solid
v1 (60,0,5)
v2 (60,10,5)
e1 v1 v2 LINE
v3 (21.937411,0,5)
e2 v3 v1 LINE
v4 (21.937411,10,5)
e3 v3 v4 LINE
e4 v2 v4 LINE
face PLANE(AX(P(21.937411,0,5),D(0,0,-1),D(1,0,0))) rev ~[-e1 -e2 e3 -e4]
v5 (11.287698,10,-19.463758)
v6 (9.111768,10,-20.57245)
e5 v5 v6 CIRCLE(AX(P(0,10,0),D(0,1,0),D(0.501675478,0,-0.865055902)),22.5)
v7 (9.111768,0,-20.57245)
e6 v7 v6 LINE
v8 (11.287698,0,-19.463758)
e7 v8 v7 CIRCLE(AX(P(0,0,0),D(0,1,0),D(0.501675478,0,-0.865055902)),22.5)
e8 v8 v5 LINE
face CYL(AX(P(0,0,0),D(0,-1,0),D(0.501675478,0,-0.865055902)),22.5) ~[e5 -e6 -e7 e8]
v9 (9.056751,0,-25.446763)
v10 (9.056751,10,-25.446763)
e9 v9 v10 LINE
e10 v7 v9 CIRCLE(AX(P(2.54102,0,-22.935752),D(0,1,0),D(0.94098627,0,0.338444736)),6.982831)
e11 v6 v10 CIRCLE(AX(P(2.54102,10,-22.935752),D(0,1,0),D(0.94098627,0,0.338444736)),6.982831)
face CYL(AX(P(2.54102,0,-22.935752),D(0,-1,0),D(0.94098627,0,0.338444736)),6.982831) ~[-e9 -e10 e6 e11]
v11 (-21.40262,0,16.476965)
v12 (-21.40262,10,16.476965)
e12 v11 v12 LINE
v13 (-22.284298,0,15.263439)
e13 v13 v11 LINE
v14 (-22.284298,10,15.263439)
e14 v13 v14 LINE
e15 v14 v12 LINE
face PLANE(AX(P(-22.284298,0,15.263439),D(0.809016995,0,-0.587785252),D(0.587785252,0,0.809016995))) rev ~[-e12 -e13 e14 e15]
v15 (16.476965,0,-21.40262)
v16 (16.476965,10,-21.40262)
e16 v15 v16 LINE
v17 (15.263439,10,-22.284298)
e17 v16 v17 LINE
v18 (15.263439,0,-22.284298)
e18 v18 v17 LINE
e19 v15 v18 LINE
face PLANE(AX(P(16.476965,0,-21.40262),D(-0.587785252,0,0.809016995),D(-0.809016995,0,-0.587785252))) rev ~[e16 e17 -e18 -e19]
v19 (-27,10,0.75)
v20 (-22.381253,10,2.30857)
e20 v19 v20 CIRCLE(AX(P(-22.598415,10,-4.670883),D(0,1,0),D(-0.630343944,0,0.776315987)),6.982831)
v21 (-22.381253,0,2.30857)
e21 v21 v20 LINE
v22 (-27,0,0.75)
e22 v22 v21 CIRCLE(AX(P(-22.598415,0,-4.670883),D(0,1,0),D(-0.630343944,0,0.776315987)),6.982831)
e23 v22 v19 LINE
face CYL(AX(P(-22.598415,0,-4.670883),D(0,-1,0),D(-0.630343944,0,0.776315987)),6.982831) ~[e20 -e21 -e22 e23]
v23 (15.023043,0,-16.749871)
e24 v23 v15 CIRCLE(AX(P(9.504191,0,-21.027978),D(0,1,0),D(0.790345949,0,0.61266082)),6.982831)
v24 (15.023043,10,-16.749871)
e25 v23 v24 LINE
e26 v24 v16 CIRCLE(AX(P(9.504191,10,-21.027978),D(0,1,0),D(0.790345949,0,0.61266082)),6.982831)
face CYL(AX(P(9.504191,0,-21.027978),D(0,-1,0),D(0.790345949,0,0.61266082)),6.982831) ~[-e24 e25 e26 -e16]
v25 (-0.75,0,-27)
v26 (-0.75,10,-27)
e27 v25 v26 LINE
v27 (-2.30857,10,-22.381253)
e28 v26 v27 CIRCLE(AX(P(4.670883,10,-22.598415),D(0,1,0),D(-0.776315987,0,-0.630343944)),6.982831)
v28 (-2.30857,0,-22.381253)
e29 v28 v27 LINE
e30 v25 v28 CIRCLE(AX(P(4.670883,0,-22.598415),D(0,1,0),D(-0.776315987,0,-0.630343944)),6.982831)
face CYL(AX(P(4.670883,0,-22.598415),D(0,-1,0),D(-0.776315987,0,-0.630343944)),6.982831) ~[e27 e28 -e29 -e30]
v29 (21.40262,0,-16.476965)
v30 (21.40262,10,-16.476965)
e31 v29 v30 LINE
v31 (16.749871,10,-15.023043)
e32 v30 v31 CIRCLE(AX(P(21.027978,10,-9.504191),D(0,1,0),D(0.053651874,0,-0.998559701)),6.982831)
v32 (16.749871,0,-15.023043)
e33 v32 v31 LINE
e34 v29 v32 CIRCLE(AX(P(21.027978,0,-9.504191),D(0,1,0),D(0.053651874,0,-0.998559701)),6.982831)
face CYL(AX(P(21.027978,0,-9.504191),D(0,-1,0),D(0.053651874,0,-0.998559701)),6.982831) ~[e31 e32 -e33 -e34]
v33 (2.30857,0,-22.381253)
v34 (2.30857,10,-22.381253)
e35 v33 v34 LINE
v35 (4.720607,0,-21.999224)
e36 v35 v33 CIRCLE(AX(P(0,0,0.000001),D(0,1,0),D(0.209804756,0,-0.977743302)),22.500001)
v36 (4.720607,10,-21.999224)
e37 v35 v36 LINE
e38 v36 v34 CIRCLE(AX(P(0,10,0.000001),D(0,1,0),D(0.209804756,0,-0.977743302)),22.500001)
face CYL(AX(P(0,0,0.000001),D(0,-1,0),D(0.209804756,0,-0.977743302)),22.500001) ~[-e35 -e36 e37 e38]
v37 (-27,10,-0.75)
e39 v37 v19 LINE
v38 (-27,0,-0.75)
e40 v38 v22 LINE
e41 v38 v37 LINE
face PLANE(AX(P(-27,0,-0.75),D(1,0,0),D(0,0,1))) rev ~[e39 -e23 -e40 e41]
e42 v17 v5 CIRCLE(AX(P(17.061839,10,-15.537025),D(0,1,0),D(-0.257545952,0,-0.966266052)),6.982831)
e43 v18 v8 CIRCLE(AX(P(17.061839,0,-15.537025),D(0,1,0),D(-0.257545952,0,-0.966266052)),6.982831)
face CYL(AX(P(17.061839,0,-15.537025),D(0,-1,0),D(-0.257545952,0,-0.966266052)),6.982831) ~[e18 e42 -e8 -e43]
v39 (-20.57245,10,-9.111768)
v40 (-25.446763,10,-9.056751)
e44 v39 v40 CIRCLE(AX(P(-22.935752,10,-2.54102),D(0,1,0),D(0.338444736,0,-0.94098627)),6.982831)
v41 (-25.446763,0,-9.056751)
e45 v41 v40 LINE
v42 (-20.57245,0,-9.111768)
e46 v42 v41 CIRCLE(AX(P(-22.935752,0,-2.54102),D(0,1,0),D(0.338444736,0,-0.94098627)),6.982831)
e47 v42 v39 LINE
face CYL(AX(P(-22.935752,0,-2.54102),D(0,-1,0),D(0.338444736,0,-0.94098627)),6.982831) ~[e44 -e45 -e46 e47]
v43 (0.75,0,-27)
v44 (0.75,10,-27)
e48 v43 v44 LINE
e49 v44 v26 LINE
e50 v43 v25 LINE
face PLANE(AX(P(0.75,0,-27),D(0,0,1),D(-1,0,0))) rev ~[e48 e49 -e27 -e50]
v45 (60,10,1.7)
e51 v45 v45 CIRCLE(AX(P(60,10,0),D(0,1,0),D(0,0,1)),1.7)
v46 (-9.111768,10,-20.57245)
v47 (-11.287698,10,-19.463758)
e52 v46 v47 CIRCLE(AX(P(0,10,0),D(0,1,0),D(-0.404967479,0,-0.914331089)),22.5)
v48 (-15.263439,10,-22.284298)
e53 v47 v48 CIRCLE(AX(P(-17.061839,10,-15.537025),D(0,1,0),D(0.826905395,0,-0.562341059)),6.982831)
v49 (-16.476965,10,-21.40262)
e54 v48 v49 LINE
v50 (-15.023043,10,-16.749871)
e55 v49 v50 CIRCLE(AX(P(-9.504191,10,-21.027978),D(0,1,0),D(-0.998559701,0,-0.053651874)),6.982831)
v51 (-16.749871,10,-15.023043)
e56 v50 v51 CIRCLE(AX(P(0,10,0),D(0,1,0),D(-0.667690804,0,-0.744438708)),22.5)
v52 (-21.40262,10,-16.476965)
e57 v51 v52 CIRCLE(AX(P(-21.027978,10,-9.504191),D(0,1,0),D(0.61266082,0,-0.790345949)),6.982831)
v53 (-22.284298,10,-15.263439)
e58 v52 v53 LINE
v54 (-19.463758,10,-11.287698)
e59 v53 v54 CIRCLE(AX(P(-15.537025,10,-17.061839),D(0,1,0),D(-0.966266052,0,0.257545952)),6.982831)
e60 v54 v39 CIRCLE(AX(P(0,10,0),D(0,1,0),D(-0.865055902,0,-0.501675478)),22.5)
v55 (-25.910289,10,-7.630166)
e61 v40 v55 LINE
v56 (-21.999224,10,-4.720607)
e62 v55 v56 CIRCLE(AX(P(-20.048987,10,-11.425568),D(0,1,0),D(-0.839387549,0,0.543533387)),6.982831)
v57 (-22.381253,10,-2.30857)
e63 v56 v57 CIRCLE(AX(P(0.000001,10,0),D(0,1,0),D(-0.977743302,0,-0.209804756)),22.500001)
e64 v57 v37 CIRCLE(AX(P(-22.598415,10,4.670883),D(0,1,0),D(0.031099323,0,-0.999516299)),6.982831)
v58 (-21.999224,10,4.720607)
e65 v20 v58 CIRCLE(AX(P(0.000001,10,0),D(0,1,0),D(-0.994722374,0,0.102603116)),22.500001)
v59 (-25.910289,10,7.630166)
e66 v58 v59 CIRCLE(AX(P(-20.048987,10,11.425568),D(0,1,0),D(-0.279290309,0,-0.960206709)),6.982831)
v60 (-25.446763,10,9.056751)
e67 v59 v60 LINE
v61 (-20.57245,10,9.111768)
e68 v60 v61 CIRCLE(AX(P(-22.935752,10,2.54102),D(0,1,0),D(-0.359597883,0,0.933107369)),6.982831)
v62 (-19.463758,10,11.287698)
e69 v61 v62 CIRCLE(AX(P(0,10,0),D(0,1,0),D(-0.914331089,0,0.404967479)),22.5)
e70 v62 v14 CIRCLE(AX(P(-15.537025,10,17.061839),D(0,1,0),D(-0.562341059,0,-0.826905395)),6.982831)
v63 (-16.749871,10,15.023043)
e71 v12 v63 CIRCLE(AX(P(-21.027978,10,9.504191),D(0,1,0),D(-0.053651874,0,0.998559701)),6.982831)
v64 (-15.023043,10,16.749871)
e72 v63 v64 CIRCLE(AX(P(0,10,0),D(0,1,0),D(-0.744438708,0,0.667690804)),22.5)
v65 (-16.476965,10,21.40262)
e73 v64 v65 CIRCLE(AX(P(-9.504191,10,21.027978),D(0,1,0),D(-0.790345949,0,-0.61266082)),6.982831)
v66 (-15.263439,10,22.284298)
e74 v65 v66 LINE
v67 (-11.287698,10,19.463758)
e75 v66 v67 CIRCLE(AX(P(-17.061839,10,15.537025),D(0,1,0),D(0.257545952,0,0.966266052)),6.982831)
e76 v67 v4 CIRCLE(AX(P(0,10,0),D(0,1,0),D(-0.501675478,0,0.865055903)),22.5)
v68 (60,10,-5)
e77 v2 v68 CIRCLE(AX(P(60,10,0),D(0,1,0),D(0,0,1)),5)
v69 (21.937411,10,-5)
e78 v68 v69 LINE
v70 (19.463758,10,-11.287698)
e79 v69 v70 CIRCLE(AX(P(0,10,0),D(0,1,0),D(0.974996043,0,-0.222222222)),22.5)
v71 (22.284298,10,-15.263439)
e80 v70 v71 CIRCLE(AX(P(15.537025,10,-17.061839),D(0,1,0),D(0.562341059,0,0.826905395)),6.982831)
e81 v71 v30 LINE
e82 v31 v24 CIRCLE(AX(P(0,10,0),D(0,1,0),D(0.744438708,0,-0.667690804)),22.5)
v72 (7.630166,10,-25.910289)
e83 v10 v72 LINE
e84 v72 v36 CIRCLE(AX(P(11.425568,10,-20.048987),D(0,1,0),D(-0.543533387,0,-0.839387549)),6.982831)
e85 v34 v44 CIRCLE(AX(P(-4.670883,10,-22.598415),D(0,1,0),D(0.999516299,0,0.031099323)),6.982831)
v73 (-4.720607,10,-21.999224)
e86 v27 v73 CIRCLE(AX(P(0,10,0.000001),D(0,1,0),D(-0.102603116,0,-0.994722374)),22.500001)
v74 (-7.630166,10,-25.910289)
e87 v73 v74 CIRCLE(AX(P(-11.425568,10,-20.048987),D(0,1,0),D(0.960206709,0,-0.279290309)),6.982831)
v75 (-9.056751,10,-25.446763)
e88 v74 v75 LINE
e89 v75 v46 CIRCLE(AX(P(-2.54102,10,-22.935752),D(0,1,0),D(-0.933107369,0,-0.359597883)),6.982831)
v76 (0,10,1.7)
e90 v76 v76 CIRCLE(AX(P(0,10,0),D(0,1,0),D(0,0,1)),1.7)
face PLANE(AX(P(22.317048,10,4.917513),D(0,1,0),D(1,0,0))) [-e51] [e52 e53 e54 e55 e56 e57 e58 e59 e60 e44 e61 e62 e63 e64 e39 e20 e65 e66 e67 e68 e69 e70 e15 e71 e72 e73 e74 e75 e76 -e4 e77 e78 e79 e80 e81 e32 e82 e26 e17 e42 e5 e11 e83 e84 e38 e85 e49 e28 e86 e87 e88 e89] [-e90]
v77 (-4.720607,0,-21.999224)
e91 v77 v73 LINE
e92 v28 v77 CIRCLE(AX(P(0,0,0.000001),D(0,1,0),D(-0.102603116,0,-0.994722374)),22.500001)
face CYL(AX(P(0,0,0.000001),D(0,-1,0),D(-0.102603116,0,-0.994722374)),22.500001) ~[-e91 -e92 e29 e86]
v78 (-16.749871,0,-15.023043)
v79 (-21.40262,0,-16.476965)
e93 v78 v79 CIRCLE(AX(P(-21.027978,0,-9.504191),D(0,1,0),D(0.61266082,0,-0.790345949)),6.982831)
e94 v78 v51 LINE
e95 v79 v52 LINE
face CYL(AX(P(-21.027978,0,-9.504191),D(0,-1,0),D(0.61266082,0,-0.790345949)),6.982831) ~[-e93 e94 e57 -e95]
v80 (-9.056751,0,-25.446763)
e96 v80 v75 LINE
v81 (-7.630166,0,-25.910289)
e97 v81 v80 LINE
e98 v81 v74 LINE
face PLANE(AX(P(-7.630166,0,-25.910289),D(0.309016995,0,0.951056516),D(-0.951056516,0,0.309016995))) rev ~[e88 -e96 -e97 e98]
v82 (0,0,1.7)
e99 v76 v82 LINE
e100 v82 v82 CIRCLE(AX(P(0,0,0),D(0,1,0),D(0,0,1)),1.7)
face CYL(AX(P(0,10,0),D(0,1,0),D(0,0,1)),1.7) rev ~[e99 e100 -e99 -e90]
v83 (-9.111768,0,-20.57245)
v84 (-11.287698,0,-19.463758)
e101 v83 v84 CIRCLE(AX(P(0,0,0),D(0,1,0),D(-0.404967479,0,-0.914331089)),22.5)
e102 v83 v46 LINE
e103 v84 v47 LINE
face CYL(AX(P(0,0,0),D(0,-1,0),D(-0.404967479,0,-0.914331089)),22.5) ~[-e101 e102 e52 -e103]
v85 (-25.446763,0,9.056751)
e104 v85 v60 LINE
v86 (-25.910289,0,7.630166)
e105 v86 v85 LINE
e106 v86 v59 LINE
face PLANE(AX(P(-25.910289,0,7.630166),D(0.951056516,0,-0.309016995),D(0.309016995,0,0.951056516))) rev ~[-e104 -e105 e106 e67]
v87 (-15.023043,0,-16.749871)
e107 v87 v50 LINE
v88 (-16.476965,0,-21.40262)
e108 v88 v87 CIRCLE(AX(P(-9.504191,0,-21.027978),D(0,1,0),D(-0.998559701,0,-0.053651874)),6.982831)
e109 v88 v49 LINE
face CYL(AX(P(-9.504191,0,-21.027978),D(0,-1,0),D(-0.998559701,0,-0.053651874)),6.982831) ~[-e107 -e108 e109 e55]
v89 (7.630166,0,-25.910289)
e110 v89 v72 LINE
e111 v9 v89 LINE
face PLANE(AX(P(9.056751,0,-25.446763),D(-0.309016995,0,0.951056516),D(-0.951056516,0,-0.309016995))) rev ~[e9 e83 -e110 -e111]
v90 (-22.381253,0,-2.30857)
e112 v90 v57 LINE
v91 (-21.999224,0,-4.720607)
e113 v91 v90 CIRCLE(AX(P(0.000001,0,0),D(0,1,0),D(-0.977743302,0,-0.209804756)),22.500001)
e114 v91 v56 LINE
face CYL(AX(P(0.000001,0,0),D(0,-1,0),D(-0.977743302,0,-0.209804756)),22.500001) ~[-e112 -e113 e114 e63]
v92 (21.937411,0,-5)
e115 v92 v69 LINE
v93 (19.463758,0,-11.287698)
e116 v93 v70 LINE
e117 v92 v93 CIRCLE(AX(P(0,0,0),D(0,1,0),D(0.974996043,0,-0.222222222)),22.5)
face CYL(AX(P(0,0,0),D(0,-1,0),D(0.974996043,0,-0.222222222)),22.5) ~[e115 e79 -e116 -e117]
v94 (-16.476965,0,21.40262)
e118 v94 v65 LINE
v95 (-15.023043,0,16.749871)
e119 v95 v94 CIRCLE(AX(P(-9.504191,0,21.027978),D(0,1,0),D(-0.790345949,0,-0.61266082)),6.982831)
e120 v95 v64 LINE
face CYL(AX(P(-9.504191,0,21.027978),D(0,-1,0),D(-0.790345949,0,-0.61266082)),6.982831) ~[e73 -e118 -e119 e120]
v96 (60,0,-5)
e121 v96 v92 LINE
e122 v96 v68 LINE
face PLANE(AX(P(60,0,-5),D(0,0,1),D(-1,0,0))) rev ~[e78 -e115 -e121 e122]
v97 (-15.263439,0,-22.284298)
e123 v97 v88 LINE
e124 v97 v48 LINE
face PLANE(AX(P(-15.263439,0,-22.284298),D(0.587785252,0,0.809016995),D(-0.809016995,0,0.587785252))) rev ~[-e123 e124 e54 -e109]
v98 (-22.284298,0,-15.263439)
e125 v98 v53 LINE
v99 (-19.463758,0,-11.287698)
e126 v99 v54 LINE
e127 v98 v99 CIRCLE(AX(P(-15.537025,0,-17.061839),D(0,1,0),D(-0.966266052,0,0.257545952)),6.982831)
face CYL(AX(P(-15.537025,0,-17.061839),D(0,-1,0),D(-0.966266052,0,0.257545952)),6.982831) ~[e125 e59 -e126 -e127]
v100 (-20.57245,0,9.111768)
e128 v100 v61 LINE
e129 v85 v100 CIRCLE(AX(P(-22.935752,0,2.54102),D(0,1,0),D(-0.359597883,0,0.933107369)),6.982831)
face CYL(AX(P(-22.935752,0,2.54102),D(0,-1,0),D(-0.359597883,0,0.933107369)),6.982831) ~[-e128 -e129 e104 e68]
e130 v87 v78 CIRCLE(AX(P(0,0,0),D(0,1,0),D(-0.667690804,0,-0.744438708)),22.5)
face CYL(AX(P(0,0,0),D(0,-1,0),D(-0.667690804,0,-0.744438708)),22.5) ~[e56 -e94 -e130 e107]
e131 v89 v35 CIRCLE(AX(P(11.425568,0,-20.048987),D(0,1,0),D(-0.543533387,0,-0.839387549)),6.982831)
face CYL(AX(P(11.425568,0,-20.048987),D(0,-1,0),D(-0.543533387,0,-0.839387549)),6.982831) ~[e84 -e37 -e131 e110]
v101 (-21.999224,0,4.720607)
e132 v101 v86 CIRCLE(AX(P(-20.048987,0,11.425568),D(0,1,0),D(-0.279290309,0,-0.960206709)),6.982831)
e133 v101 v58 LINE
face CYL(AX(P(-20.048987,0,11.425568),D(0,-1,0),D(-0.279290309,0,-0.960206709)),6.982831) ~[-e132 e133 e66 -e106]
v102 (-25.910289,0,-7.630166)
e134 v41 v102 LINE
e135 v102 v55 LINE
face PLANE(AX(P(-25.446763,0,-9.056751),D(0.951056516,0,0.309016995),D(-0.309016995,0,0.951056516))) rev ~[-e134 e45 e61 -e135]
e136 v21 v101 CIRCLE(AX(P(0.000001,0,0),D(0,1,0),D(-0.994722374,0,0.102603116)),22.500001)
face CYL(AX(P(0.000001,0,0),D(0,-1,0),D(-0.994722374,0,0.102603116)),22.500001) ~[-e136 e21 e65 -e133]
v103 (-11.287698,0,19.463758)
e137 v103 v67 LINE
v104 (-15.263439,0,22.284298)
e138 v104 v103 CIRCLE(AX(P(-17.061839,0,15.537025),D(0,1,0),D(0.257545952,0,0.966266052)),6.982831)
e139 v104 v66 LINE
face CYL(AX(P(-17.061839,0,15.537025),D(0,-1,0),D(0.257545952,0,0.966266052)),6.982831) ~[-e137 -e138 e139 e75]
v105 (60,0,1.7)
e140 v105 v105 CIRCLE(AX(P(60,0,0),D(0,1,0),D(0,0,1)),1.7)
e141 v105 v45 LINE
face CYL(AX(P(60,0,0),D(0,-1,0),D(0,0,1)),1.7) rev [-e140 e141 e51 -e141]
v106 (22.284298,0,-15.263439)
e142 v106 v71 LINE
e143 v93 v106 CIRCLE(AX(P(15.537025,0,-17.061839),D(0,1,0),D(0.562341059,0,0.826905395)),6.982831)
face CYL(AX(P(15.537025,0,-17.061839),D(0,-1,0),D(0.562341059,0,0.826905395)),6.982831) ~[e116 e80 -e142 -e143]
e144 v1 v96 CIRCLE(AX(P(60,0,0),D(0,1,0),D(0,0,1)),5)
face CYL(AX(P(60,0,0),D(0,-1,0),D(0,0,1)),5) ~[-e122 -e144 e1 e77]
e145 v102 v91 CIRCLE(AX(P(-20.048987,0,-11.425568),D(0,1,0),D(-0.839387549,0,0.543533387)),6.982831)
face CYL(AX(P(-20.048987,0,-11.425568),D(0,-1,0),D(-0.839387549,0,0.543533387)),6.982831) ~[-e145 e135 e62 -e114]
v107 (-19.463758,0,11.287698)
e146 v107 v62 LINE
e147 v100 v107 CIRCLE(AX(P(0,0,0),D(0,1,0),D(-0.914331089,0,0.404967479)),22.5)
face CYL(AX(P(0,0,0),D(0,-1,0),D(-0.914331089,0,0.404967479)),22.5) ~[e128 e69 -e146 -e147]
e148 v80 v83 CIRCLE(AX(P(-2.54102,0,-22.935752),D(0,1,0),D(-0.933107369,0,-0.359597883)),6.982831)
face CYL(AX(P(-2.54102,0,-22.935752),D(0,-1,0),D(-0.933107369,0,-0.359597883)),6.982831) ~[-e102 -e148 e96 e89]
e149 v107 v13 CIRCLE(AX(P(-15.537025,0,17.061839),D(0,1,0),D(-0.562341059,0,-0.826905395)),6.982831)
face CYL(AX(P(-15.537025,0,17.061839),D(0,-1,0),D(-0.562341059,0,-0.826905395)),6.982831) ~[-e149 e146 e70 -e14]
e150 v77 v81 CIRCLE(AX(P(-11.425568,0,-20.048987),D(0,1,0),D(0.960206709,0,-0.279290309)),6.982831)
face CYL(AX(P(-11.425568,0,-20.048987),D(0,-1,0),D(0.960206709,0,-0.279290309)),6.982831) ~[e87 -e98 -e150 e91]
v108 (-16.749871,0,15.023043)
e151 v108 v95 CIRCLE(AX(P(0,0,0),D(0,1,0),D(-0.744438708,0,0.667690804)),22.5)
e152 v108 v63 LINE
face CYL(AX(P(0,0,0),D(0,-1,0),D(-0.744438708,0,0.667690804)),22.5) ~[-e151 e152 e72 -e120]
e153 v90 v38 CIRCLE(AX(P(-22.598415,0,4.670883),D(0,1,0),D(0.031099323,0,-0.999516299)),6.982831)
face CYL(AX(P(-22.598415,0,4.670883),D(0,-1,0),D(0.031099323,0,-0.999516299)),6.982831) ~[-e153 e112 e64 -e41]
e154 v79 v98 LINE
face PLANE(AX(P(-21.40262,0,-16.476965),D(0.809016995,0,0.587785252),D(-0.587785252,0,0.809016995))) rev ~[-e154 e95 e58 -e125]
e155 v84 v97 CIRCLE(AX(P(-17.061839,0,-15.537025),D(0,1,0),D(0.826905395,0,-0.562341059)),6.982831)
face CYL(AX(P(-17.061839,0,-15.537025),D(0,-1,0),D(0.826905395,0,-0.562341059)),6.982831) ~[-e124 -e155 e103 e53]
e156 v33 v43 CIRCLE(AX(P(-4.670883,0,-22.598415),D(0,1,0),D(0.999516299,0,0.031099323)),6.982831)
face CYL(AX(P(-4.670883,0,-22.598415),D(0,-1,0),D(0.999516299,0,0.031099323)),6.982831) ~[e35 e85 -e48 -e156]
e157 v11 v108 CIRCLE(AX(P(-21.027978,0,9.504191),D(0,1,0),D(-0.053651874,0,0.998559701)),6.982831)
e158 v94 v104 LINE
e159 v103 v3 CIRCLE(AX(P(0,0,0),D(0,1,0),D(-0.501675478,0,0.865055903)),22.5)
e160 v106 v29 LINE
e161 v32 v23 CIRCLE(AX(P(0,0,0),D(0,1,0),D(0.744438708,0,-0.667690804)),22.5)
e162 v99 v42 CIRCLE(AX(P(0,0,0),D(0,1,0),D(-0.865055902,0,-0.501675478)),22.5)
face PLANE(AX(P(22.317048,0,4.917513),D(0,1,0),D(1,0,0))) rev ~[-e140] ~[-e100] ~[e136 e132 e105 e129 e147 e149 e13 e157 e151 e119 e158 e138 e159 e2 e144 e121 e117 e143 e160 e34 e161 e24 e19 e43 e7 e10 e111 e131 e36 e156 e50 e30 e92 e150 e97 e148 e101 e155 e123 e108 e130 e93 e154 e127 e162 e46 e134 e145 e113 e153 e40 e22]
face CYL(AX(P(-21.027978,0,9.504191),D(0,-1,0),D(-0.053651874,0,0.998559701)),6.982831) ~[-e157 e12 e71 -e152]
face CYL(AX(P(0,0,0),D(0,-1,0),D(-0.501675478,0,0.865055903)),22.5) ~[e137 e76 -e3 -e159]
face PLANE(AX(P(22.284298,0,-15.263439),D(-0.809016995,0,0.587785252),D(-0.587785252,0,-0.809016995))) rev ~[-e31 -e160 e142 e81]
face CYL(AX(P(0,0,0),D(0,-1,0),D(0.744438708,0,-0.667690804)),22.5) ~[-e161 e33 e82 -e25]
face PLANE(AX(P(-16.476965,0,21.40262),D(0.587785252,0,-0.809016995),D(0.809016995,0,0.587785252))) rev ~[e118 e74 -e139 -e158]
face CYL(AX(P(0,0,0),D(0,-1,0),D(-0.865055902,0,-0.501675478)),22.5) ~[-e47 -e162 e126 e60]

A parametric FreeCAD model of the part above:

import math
import FreeCAD as App
import Part
import Sketcher

V = App.Vector
Q = App.Units.Quantity

doc = App.newDocument("Part")
body = doc.addObject("PartDesign::Body", "Body")

# Sketch on XZ plane
sketch1 = body.newObject("Sketcher::SketchObject", "Sketch")
sketch1.AttachmentSupport = (doc.getObject("XZ_Plane"), [""])
sketch1.MapMode = "FlatFace"
sketch1.addGeometry(Part.ArcOfCircle(Part.Circle(V(60, 0, 0), V(0, 0, 1), 5), math.radians(-90), math.radians(90)), False)
sketch1.addGeometry(Part.LineSegment(V(60, -5, 0), V(21.9, -5, 0)), False)
sketch1.addGeometry(Part.ArcOfCircle(Part.Circle(V(0, 0, 0), V(0, 0, 1), 22.5), math.radians(-30.11), math.radians(-12.84)), False)
sketch1.addGeometry(Part.ArcOfCircle(Part.Circle(V(15.5, -17.1, 0), V(0, 0, 1), 7), math.radians(15), math.radians(56)), False)
sketch1.addGeometry(Part.LineSegment(V(22.3, -15.3, 0), V(21.4, -16.5, 0)), False)
sketch1.addGeometry(Part.ArcOfCircle(Part.Circle(V(21, -9.5, 0), V(0, 0, 1), 7), math.radians(-128), math.radians(-87)), False)
sketch1.addGeometry(Part.ArcOfCircle(Part.Circle(V(0, 0, 0), V(0, 0, 1), 22.5), math.radians(-48.11), math.radians(-41.89)), False)
sketch1.addGeometry(Part.ArcOfCircle(Part.Circle(V(9.5, -21, 0), V(0, 0, 1), 7), math.radians(-3), math.radians(38)), False)
sketch1.addGeometry(Part.LineSegment(V(16.5, -21.4, 0), V(15.3, -22.3, 0)), False)
sketch1.addGeometry(Part.ArcOfCircle(Part.Circle(V(17.1, -15.5, 0), V(0, 0, 1), 7), math.radians(-146), math.radians(-105)), False)
sketch1.addGeometry(Part.ArcOfCircle(Part.Circle(V(0, 0, 0), V(0, 0, 1), 22.5), math.radians(-66.11), math.radians(-59.89)), False)
sketch1.addGeometry(Part.ArcOfCircle(Part.Circle(V(2.5, -22.9, 0), V(0, 0, 1), 7), math.radians(-21), math.radians(20)), False)
sketch1.addGeometry(Part.LineSegment(V(9.1, -25.4, 0), V(7.6, -25.9, 0)), False)
sketch1.addGeometry(Part.ArcOfCircle(Part.Circle(V(11.4, -20, 0), V(0, 0, 1), 7), math.radians(-164), math.radians(-123)), False)
sketch1.addGeometry(Part.ArcOfCircle(Part.Circle(V(0, 0, 0), V(0, 0, 1), 22.5), math.radians(-84.11), math.radians(-77.89)), False)
sketch1.addGeometry(Part.ArcOfCircle(Part.Circle(V(-4.7, -22.6, 0), V(0, 0, 1), 7), math.radians(-39), math.radians(2)), False)
sketch1.addGeometry(Part.LineSegment(V(0.8, -27, 0), V(-0.8, -27, 0)), False)
sketch1.addGeometry(Part.ArcOfCircle(Part.Circle(V(4.7, -22.6, 0), V(0, 0, 1), 7), math.radians(178), math.radians(219)), False)
sketch1.addGeometry(Part.ArcOfCircle(Part.Circle(V(0, 0, 0), V(0, 0, 1), 22.5), math.radians(-102.11), math.radians(-95.89)), False)
sketch1.addGeometry(Part.ArcOfCircle(Part.Circle(V(-11.4, -20, 0), V(0, 0, 1), 7), math.radians(-57), math.radians(-16)), False)
sketch1.addGeometry(Part.LineSegment(V(-7.6, -25.9, 0), V(-9.1, -25.4, 0)), False)
sketch1.addGeometry(Part.ArcOfCircle(Part.Circle(V(-2.5, -22.9, 0), V(0, 0, 1), 7), math.radians(160), math.radians(201)), False)
sketch1.addGeometry(Part.ArcOfCircle(Part.Circle(V(0, 0, 0), V(0, 0, 1), 22.5), math.radians(-120.11), math.radians(-113.89)), False)
sketch1.addGeometry(Part.ArcOfCircle(Part.Circle(V(-17.1, -15.5, 0), V(0, 0, 1), 7), math.radians(-75), math.radians(-34)), False)
sketch1.addGeometry(Part.LineSegment(V(-15.3, -22.3, 0), V(-16.5, -21.4, 0)), False)
sketch1.addGeometry(Part.ArcOfCircle(Part.Circle(V(-9.5, -21, 0), V(0, 0, 1), 7), math.radians(142), math.radians(183)), False)
sketch1.addGeometry(Part.ArcOfCircle(Part.Circle(V(0, 0, 0), V(0, 0, 1), 22.5), math.radians(-138.11), math.radians(-131.89)), False)
sketch1.addGeometry(Part.ArcOfCircle(Part.Circle(V(-21, -9.5, 0), V(0, 0, 1), 7), math.radians(-93), math.radians(-52)), False)
sketch1.addGeometry(Part.LineSegment(V(-21.4, -16.5, 0), V(-22.3, -15.3, 0)), False)
sketch1.addGeometry(Part.ArcOfCircle(Part.Circle(V(-15.5, -17.1, 0), V(0, 0, 1), 7), math.radians(124), math.radians(165)), False)
sketch1.addGeometry(Part.ArcOfCircle(Part.Circle(V(0, 0, 0), V(0, 0, 1), 22.5), math.radians(-156.11), math.radians(-149.89)), False)
sketch1.addGeometry(Part.ArcOfCircle(Part.Circle(V(-22.9, -2.5, 0), V(0, 0, 1), 7), math.radians(-111), math.radians(-70)), False)
sketch1.addGeometry(Part.LineSegment(V(-25.4, -9.1, 0), V(-25.9, -7.6, 0)), False)
sketch1.addGeometry(Part.ArcOfCircle(Part.Circle(V(-20, -11.4, 0), V(0, 0, 1), 7), math.radians(106), math.radians(147)), False)
sketch1.addGeometry(Part.ArcOfCircle(Part.Circle(V(0, 0, 0), V(0, 0, 1), 22.5), math.radians(-174.11), math.radians(-167.89)), False)
sketch1.addGeometry(Part.ArcOfCircle(Part.Circle(V(-22.6, 4.7, 0), V(0, 0, 1), 7), math.radians(-129), math.radians(-88)), False)
sketch1.addGeometry(Part.LineSegment(V(-27, -0.8, 0), V(-27, 0.8, 0)), False)
sketch1.addGeometry(Part.ArcOfCircle(Part.Circle(V(-22.6, -4.7, 0), V(0, 0, 1), 7), math.radians(88), math.radians(129)), False)
sketch1.addGeometry(Part.ArcOfCircle(Part.Circle(V(0, 0, 0), V(0, 0, 1), 22.5), math.radians(167.89), math.radians(174.11)), False)
sketch1.addGeometry(Part.ArcOfCircle(Part.Circle(V(-20, 11.4, 0), V(0, 0, 1), 7), math.radians(-147), math.radians(-106)), False)
sketch1.addGeometry(Part.LineSegment(V(-25.9, 7.6, 0), V(-25.4, 9.1, 0)), False)
sketch1.addGeometry(Part.ArcOfCircle(Part.Circle(V(-22.9, 2.5, 0), V(0, 0, 1), 7), math.radians(70), math.radians(111)), False)
sketch1.addGeometry(Part.ArcOfCircle(Part.Circle(V(0, 0, 0), V(0, 0, 1), 22.5), math.radians(149.89), math.radians(156.11)), False)
sketch1.addGeometry(Part.ArcOfCircle(Part.Circle(V(-15.5, 17.1, 0), V(0, 0, 1), 7), math.radians(-165), math.radians(-124)), False)
sketch1.addGeometry(Part.LineSegment(V(-22.3, 15.3, 0), V(-21.4, 16.5, 0)), False)
sketch1.addGeometry(Part.ArcOfCircle(Part.Circle(V(-21, 9.5, 0), V(0, 0, 1), 7), math.radians(52), math.radians(93)), False)
sketch1.addGeometry(Part.ArcOfCircle(Part.Circle(V(0, 0, 0), V(0, 0, 1), 22.5), math.radians(131.89), math.radians(138.11)), False)
sketch1.addGeometry(Part.ArcOfCircle(Part.Circle(V(-9.5, 21, 0), V(0, 0, 1), 7), math.radians(177), math.radians(218)), False)
sketch1.addGeometry(Part.LineSegment(V(-16.5, 21.4, 0), V(-15.3, 22.3, 0)), False)
sketch1.addGeometry(Part.ArcOfCircle(Part.Circle(V(-17.1, 15.5, 0), V(0, 0, 1), 7), math.radians(34), math.radians(75)), False)
sketch1.addGeometry(Part.ArcOfCircle(Part.Circle(V(0, 0, 0), V(0, 0, 1), 22.5), math.radians(12), math.radians(120)), False)
sketch1.addGeometry(Part.ArcOfCircle(Part.Circle(V(20, 11.4, 0), V(0, 0, 1), 7), math.radians(-73.78), math.radians(-66.95)), False)
sketch1.addGeometry(Part.LineSegment(V(22.8, 5, 0), V(60, 5, 0)), False)
sketch1.addGeometry(Part.Circle(V(60, 0, 0), V(0, 0, 1), 1.7), False)
sketch1.addGeometry(Part.ArcOfCircle(Part.Circle(V(0, 0, 0), V(0, 0, 1), 22.5), math.radians(-5.89), math.radians(5.89)), False)
sketch1.addGeometry(Part.ArcOfCircle(Part.Circle(V(22.6, 4.7, 0), V(0, 0, 1), 7), math.radians(-92), math.radians(-51)), False)
sketch1.addGeometry(Part.LineSegment(V(27, -0.8, 0), V(27, 0.8, 0)), False)
sketch1.addGeometry(Part.ArcOfCircle(Part.Circle(V(22.6, -4.7, 0), V(0, 0, 1), 7), math.radians(51), math.radians(92)), False)
sketch1.addConstraint(Sketcher.Constraint("Tangent", 0, 1, 1, 1))
sketch1.addConstraint(Sketcher.Constraint("Coincident", 1, 2, 2, 2))
sketch1.addConstraint(Sketcher.Constraint("Coincident", 2, 1, 3, 2))
sketch1.addConstraint(Sketcher.Constraint("Coincident", 3, 1, 4, 1))
sketch1.addConstraint(Sketcher.Constraint("Coincident", 4, 2, 5, 2))
sketch1.addConstraint(Sketcher.Constraint("Coincident", 5, 1, 6, 2))
sketch1.addConstraint(Sketcher.Constraint("Coincident", 6, 1, 7, 2))
sketch1.addConstraint(Sketcher.Constraint("Coincident", 7, 1, 8, 1))
sketch1.addConstraint(Sketcher.Constraint("Coincident", 8, 2, 9, 2))
sketch1.addConstraint(Sketcher.Constraint("Coincident", 9, 1, 10, 2))
sketch1.addConstraint(Sketcher.Constraint("Coincident", 10, 1, 11, 2))
sketch1.addConstraint(Sketcher.Constraint("Coincident", 11, 1, 12, 1))
sketch1.addConstraint(Sketcher.Constraint("Coincident", 12, 2, 13, 2))
sketch1.addConstraint(Sketcher.Constraint("Coincident", 13, 1, 14, 2))
sketch1.addConstraint(Sketcher.Constraint("Coincident", 14, 1, 15, 2))
sketch1.addConstraint(Sketcher.Constraint("Coincident", 15, 1, 16, 1))
sketch1.addConstraint(Sketcher.Constraint("Coincident", 16, 2, 17, 2))
sketch1.addConstraint(Sketcher.Constraint("Coincident", 17, 1, 18, 2))
sketch1.addConstraint(Sketcher.Constraint("Coincident", 18, 1, 19, 2))
sketch1.addConstraint(Sketcher.Constraint("Coincident", 19, 1, 20, 1))
sketch1.addConstraint(Sketcher.Constraint("Coincident", 20, 2, 21, 2))
sketch1.addConstraint(Sketcher.Constraint("Coincident", 21, 1, 22, 2))
sketch1.addConstraint(Sketcher.Constraint("Coincident", 22, 1, 23, 2))
sketch1.addConstraint(Sketcher.Constraint("Coincident", 23, 1, 24, 1))
sketch1.addConstraint(Sketcher.Constraint("Coincident", 24, 2, 25, 2))
sketch1.addConstraint(Sketcher.Constraint("Coincident", 25, 1, 26, 2))
sketch1.addConstraint(Sketcher.Constraint("Coincident", 26, 1, 27, 2))
sketch1.addConstraint(Sketcher.Constraint("Coincident", 27, 1, 28, 1))
sketch1.addConstraint(Sketcher.Constraint("Coincident", 28, 2, 29, 2))
sketch1.addConstraint(Sketcher.Constraint("Coincident", 29, 1, 30, 2))
sketch1.addConstraint(Sketcher.Constraint("Coincident", 30, 1, 31, 2))
sketch1.addConstraint(Sketcher.Constraint("Coincident", 31, 1, 32, 1))
sketch1.addConstraint(Sketcher.Constraint("Coincident", 32, 2, 33, 2))
sketch1.addConstraint(Sketcher.Constraint("Coincident", 33, 1, 34, 2))
sketch1.addConstraint(Sketcher.Constraint("Coincident", 34, 1, 35, 2))
sketch1.addConstraint(Sketcher.Constraint("Coincident", 35, 1, 36, 1))
sketch1.addConstraint(Sketcher.Constraint("Coincident", 36, 2, 37, 2))
sketch1.addConstraint(Sketcher.Constraint("Coincident", 37, 1, 38, 2))
sketch1.addConstraint(Sketcher.Constraint("Coincident", 38, 1, 39, 2))
sketch1.addConstraint(Sketcher.Constraint("Coincident", 39, 1, 40, 1))
sketch1.addConstraint(Sketcher.Constraint("Coincident", 40, 2, 41, 2))
sketch1.addConstraint(Sketcher.Constraint("Coincident", 41, 1, 42, 2))
sketch1.addConstraint(Sketcher.Constraint("Coincident", 42, 1, 43, 2))
sketch1.addConstraint(Sketcher.Constraint("Coincident", 43, 1, 44, 1))
sketch1.addConstraint(Sketcher.Constraint("Coincident", 44, 2, 45, 2))
sketch1.addConstraint(Sketcher.Constraint("Coincident", 45, 1, 46, 2))
sketch1.addConstraint(Sketcher.Constraint("Coincident", 46, 1, 47, 2))
sketch1.addConstraint(Sketcher.Constraint("Coincident", 47, 1, 48, 1))
sketch1.addConstraint(Sketcher.Constraint("Coincident", 48, 2, 49, 2))
sketch1.addConstraint(Sketcher.Constraint("Coincident", 49, 1, 50, 2))
sketch1.addConstraint(Sketcher.Constraint("Coincident", 50, 1, 51, 1))
sketch1.addConstraint(Sketcher.Constraint("Coincident", 51, 2, 52, 1))
sketch1.addConstraint(Sketcher.Constraint("Tangent", 52, 2, 0, 2))
sketch1.addConstraint(Sketcher.Constraint("Coincident", 54, 1, 55, 1))
sketch1.addConstraint(Sketcher.Constraint("Coincident", 55, 2, 56, 1))
sketch1.addConstraint(Sketcher.Constraint("Coincident", 56, 2, 57, 1))
sketch1.addConstraint(Sketcher.Constraint("Coincident", 57, 2, 54, 2))
sketch1.addConstraint(Sketcher.Constraint("Horizontal", 1))
sketch1.addConstraint(Sketcher.Constraint("Horizontal", 16))
sketch1.addConstraint(Sketcher.Constraint("Vertical", 36))
sketch1.addConstraint(Sketcher.Constraint("Horizontal", 52))
sketch1.addConstraint(Sketcher.Constraint("Vertical", 56))
sketch1.addConstraint(Sketcher.Constraint("Coincident", 2, 3, -1, 1))
sketch1.addConstraint(Sketcher.Constraint("Coincident", 6, 3, -1, 1))
sketch1.addConstraint(Sketcher.Constraint("Coincident", 10, 3, -1, 1))
sketch1.addConstraint(Sketcher.Constraint("Coincident", 14, 3, -1, 1))
sketch1.addConstraint(Sketcher.Constraint("Coincident", 18, 3, -1, 1))
sketch1.addConstraint(Sketcher.Constraint("Coincident", 22, 3, -1, 1))
sketch1.addConstraint(Sketcher.Constraint("Coincident", 26, 3, -1, 1))
sketch1.addConstraint(Sketcher.Constraint("Coincident", 30, 3, -1, 1))
sketch1.addConstraint(Sketcher.Constraint("Coincident", 34, 3, -1, 1))
sketch1.addConstraint(Sketcher.Constraint("Coincident", 38, 3, -1, 1))
sketch1.addConstraint(Sketcher.Constraint("Coincident", 42, 3, -1, 1))
sketch1.addConstraint(Sketcher.Constraint("Coincident", 46, 3, -1, 1))
sketch1.addConstraint(Sketcher.Constraint("Coincident", 50, 3, -1, 1))
sketch1.addConstraint(Sketcher.Constraint("Coincident", 54, 3, -1, 1))
sketch1.addConstraint(Sketcher.Constraint("Coincident", 53, 3, 0, 3))
sketch1.addConstraint(Sketcher.Constraint("Equal", 3, 5))
sketch1.addConstraint(Sketcher.Constraint("Equal", 2, 6))
sketch1.addConstraint(Sketcher.Constraint("Equal", 5, 7))
sketch1.addConstraint(Sketcher.Constraint("Equal", 7, 9))
sketch1.addConstraint(Sketcher.Constraint("Equal", 6, 10))
sketch1.addConstraint(Sketcher.Constraint("Equal", 9, 11))
sketch1.addConstraint(Sketcher.Constraint("Equal", 11, 13))
sketch1.addConstraint(Sketcher.Constraint("Equal", 10, 14))
sketch1.addConstraint(Sketcher.Constraint("Equal", 13, 15))
sketch1.addConstraint(Sketcher.Constraint("Equal", 15, 17))
sketch1.addConstraint(Sketcher.Constraint("Equal", 14, 18))
sketch1.addConstraint(Sketcher.Constraint("Equal", 17, 19))
sketch1.addConstraint(Sketcher.Constraint("Equal", 19, 21))
sketch1.addConstraint(Sketcher.Constraint("Equal", 18, 22))
sketch1.addConstraint(Sketcher.Constraint("Equal", 21, 23))
sketch1.addConstraint(Sketcher.Constraint("Equal", 23, 25))
sketch1.addConstraint(Sketcher.Constraint("Equal", 22, 26))
sketch1.addConstraint(Sketcher.Constraint("Equal", 25, 27))
sketch1.addConstraint(Sketcher.Constraint("Equal", 27, 29))
sketch1.addConstraint(Sketcher.Constraint("Equal", 26, 30))
sketch1.addConstraint(Sketcher.Constraint("Equal", 29, 31))
sketch1.addConstraint(Sketcher.Constraint("Equal", 31, 33))
sketch1.addConstraint(Sketcher.Constraint("Equal", 30, 34))
sketch1.addConstraint(Sketcher.Constraint("Equal", 33, 35))
sketch1.addConstraint(Sketcher.Constraint("Equal", 35, 37))
sketch1.addConstraint(Sketcher.Constraint("Equal", 34, 38))
sketch1.addConstraint(Sketcher.Constraint("Equal", 37, 39))
sketch1.addConstraint(Sketcher.Constraint("Equal", 39, 41))
sketch1.addConstraint(Sketcher.Constraint("Equal", 38, 42))
sketch1.addConstraint(Sketcher.Constraint("Equal", 41, 43))
sketch1.addConstraint(Sketcher.Constraint("Equal", 43, 45))
sketch1.addConstraint(Sketcher.Constraint("Equal", 42, 46))
sketch1.addConstraint(Sketcher.Constraint("Equal", 45, 47))
sketch1.addConstraint(Sketcher.Constraint("Equal", 47, 49))
sketch1.addConstraint(Sketcher.Constraint("Equal", 46, 50))
sketch1.addConstraint(Sketcher.Constraint("Equal", 49, 51))
sketch1.addConstraint(Sketcher.Constraint("Equal", 50, 54))
sketch1.addConstraint(Sketcher.Constraint("Equal", 51, 55))
sketch1.addConstraint(Sketcher.Constraint("Equal", 55, 57))
sketch1.addConstraint(Sketcher.Constraint("Symmetric", 3, 3, 43, 3, -1, 1))
sketch1.addConstraint(Sketcher.Constraint("Symmetric", 5, 3, 45, 3, -1, 1))
sketch1.addConstraint(Sketcher.Constraint("Symmetric", 7, 3, 47, 3, -1, 1))
sketch1.addConstraint(Sketcher.Constraint("Symmetric", 9, 3, 49, 3, -1, 1))
sketch1.addConstraint(Sketcher.Constraint("Symmetric", 33, 3, 51, 3, -1, 1))
sketch1.addConstraint(Sketcher.Constraint("Symmetric", 37, 3, 55, 3, -1, 1))
sketch1.addConstraint(Sketcher.Constraint("Symmetric", 35, 3, 57, 3, -1, 1))
sketch1.addConstraint(Sketcher.Constraint("Symmetric", 15, 3, 17, 3, -2))
sketch1.addConstraint(Sketcher.Constraint("Symmetric", 13, 3, 19, 3, -2))
sketch1.addConstraint(Sketcher.Constraint("Symmetric", 11, 3, 21, 3, -2))
sketch1.addConstraint(Sketcher.Constraint("Symmetric", 9, 3, 23, 3, -2))
sketch1.addConstraint(Sketcher.Constraint("Symmetric", 7, 3, 25, 3, -2))
sketch1.addConstraint(Sketcher.Constraint("Symmetric", 5, 3, 27, 3, -2))
sketch1.addConstraint(Sketcher.Constraint("Symmetric", 3, 3, 29, 3, -2))
sketch1.addConstraint(Sketcher.Constraint("Symmetric", 39, 3, 51, 3, -2))
sketch1.addConstraint(Sketcher.Constraint("Symmetric", 35, 3, 55, 3, -2))
sketch1.addConstraint(Sketcher.Constraint("Symmetric", 31, 3, 41, 3, -1))
sketch1.addConstraint(Sketcher.Constraint("PointOnObject", 0, 3, -1))
sketch1.addConstraint(Sketcher.Constraint("Perpendicular", 4, 24))
sketch1.addConstraint(Sketcher.Constraint("Perpendicular", 8, 28))
sketch1.addConstraint(Sketcher.Constraint("Perpendicular", 12, 32))
sketch1.addConstraint(Sketcher.Constraint("Perpendicular", 20, 40))
sketch1.addConstraint(Sketcher.Constraint("Perpendicular", 24, 44))
sketch1.addConstraint(Sketcher.Constraint("Perpendicular", 28, 48))
sketch1.addConstraint(Sketcher.Constraint("Horizontal", 12, 2, 19, 1))
sketch1.addConstraint(Sketcher.Constraint("Horizontal", 11, 1, 20, 2))
sketch1.addConstraint(Sketcher.Constraint("Horizontal", 8, 2, 23, 1))
sketch1.addConstraint(Sketcher.Constraint("Horizontal", 7, 1, 24, 2))
sketch1.addConstraint(Sketcher.Constraint("Horizontal", 4, 2, 27, 1))
sketch1.addConstraint(Sketcher.Constraint("Horizontal", 35, 1, 55, 2))
sketch1.addConstraint(Sketcher.Constraint("Vertical", 32, 2, 39, 1))
sketch1.addConstraint(Sketcher.Constraint("Vertical", 28, 2, 43, 1))
sketch1.addConstraint(Sketcher.Constraint("Vertical", 24, 2, 47, 1))
sketch1.addConstraint(Sketcher.Constraint("Equal", 16, 36))
sketch1.addConstraint(Sketcher.Constraint("Equal", 4, 8))
sketch1.addConstraint(Sketcher.Constraint("Equal", 8, 12))
sketch1.addConstraint(Sketcher.Constraint("Equal", 28, 32))
sketch1.addConstraint(Sketcher.Constraint("Radius", 0, 5.0))
sketch1.addConstraint(Sketcher.Constraint("Diameter", 53, 3.4))
sketch1.addConstraint(Sketcher.Constraint("Radius", 2, 22.5))
sketch1.addConstraint(Sketcher.Constraint("Angle", 4, Q("-126 deg")))
sketch1.addConstraint(Sketcher.Constraint("Angle", 12, Q("-162 deg")))
sketch1.addConstraint(Sketcher.Constraint("DistanceX", 16, 2, 16, 1, 1.5))
sketch1.addConstraint(Sketcher.Constraint("DistanceX", -1, 1, 0, 3, 60.0))
sketch1.addConstraint(Sketcher.Constraint("DistanceY", 15, 1, -1, 1, 27.0))
sketch1.addConstraint(Sketcher.Constraint("DistanceX", 35, 1, -1, 1, 27.0))
sketch1.addConstraint(Sketcher.Constraint("Distance", 4, 1.5))
sketch1.addConstraint(Sketcher.Constraint("Radius", 3, 6.982831))
sketch1.addConstraint(Sketcher.Constraint("DistanceY", 2, 1, -1, 1, 11.287698))
sketch1.addConstraint(Sketcher.Constraint("DistanceX", -1, 1, 9, 1, 11.287698))
sketch1.addConstraint(Sketcher.Constraint("DistanceX", 52, 1, 52, 2, 37.217516))
sketch1.addConstraint(Sketcher.Constraint("DistanceY", 3, 3, -1, 1, 17.061839))
sketch1.addConstraint(Sketcher.Constraint("DistanceY", 5, 3, -1, 1, 9.504191))
sketch1.addConstraint(Sketcher.Constraint("DistanceX", -1, 1, 7, 3, 9.504191))
sketch1.addConstraint(Sketcher.Constraint("DistanceX", -1, 1, 9, 3, 17.061839))
sketch1.addConstraint(Sketcher.Constraint("DistanceX", -1, 1, 11, 3, 2.54102))
sketch1.addConstraint(Sketcher.Constraint("DistanceY", 11, 3, -1, 1, 22.935752))
sketch1.addConstraint(Sketcher.Constraint("DistanceX", -1, 1, 13, 3, 11.425568))
sketch1.addConstraint(Sketcher.Constraint("DistanceX", 31, 3, -1, 1, 22.935752))
sketch1.addConstraint(Sketcher.Constraint("DistanceY", 31, 3, -1, 1, 2.54102))
sketch1.addConstraint(Sketcher.Constraint("DistanceY", 33, 3, -1, 1, 11.425568))
sketch1.addConstraint(Sketcher.Constraint("DistanceY", 3, 1, -1, 1, 15.263439))
sketch1.addConstraint(Sketcher.Constraint("DistanceY", 6, 1, -1, 1, 16.749871))
sketch1.addConstraint(Sketcher.Constraint("DistanceX", -1, 1, 11, 1, 9.056751))
sketch1.addConstraint(Sketcher.Constraint("DistanceX", -1, 1, 14, 1, 2.30857))
sketch1.addConstraint(Sketcher.Constraint("DistanceY", 34, 1, -1, 1, 2.30857))
pad1 = body.newObject("PartDesign::Pad", "Pad")
pad1.Profile = sketch1
pad1.Length = 10
pad1.Reversed = True

# Sketch on XZ plane
sketch2 = body.newObject("Sketcher::SketchObject", "Sketch001")
sketch2.AttachmentSupport = (doc.getObject("XZ_Plane"), [""])
sketch2.MapMode = "FlatFace"
sketch2.addGeometry(Part.LineSegment(V(21.94, 5, 0), V(22.78, 5, 0)), False)
sketch2.addGeometry(Part.ArcOfCircle(Part.Circle(V(20.05, 11.43, 0), V(0, 0, 1), 6.98), math.radians(-73.78), math.radians(-66.95)), False)
sketch2.addGeometry(Part.ArcOfCircle(Part.Circle(V(0, 0, 0), V(0, 0, 1), 22.5), math.radians(12.11), math.radians(12.84)), False)
sketch2.addGeometry(Part.ArcOfCircle(Part.Circle(V(22.6, 4.67, 0), V(0, 0, 1), 6.98), math.radians(-92), math.radians(-51)), False)
sketch2.addGeometry(Part.ArcOfCircle(Part.Circle(V(0, 0, 0), V(0, 0, 1), 22.5), math.radians(-5.89), math.radians(5.89)), False)
sketch2.addGeometry(Part.ArcOfCircle(Part.Circle(V(22.6, -4.67, 0), V(0, 0, 1), 6.98), math.radians(51), math.radians(92)), False)
sketch2.addGeometry(Part.LineSegment(V(27, 0.75, 0), V(27, -0.75, 0)), False)
sketch2.addConstraint(Sketcher.Constraint("Coincident", 0, 2, 1, 2))
sketch2.addConstraint(Sketcher.Constraint("Coincident", 1, 1, 2, 1))
sketch2.addConstraint(Sketcher.Constraint("Coincident", 2, 2, 0, 1))
sketch2.addConstraint(Sketcher.Constraint("Coincident", 3, 1, 4, 1))
sketch2.addConstraint(Sketcher.Constraint("Coincident", 4, 2, 5, 2))
sketch2.addConstraint(Sketcher.Constraint("Coincident", 5, 1, 6, 1))
sketch2.addConstraint(Sketcher.Constraint("Coincident", 6, 2, 3, 2))
sketch2.addConstraint(Sketcher.Constraint("Horizontal", 0))
sketch2.addConstraint(Sketcher.Constraint("Vertical", 6))
sketch2.addConstraint(Sketcher.Constraint("Coincident", 2, 3, -1, 1))
sketch2.addConstraint(Sketcher.Constraint("Coincident", 4, 3, -1, 1))
sketch2.addConstraint(Sketcher.Constraint("Equal", 1, 3))
sketch2.addConstraint(Sketcher.Constraint("Equal", 3, 5))
sketch2.addConstraint(Sketcher.Constraint("Symmetric", 3, 3, 5, 3, -1))
sketch2.addConstraint(Sketcher.Constraint("Radius", 4, 22.5))
sketch2.addConstraint(Sketcher.Constraint("DistanceY", 6, 2, 6, 1, 1.5))
sketch2.addConstraint(Sketcher.Constraint("DistanceY", -1, 1, 0, 2, 5.0))
sketch2.addConstraint(Sketcher.Constraint("DistanceX", -1, 1, 5, 1, 27.0))
sketch2.addConstraint(Sketcher.Constraint("Radius", 1, 6.982831))
sketch2.addConstraint(Sketcher.Constraint("Radius", 2, 22.50001))
sketch2.addConstraint(Sketcher.Constraint("DistanceX", 0, 1, 0, 2, 0.845073))
sketch2.addConstraint(Sketcher.Constraint("DistanceY", -1, 1, 1, 3, 11.425568))
sketch2.addConstraint(Sketcher.Constraint("DistanceY", 3, 1, -1, 1, 2.30857))
pad2 = body.newObject("PartDesign::Pad", "Pad001")
pad2.Profile = sketch2
pad2.Length = 10
pad2.Reversed = True

# Sketch on XZ plane
sketch3 = body.newObject("Sketcher::SketchObject", "Sketch002")
sketch3.AttachmentSupport = (doc.getObject("XZ_Plane"), [""])
sketch3.MapMode = "FlatFace"
sketch3.AttachmentOffset = App.Placement(V(0, 0, -10), App.Rotation())
sketch3.addGeometry(Part.Circle(V(0, 0, 0), V(0, 0, 1), 1.7), False)
sketch3.addConstraint(Sketcher.Constraint("Coincident", 0, 3, -1, 1))
sketch3.addConstraint(Sketcher.Constraint("Diameter", 0, 3.4))
pocket1 = body.newObject("PartDesign::Pocket", "Pocket")
pocket1.Profile = sketch3
pocket1.Type = "ThroughAll"
pocket1.Reversed = True

doc.recompute()
